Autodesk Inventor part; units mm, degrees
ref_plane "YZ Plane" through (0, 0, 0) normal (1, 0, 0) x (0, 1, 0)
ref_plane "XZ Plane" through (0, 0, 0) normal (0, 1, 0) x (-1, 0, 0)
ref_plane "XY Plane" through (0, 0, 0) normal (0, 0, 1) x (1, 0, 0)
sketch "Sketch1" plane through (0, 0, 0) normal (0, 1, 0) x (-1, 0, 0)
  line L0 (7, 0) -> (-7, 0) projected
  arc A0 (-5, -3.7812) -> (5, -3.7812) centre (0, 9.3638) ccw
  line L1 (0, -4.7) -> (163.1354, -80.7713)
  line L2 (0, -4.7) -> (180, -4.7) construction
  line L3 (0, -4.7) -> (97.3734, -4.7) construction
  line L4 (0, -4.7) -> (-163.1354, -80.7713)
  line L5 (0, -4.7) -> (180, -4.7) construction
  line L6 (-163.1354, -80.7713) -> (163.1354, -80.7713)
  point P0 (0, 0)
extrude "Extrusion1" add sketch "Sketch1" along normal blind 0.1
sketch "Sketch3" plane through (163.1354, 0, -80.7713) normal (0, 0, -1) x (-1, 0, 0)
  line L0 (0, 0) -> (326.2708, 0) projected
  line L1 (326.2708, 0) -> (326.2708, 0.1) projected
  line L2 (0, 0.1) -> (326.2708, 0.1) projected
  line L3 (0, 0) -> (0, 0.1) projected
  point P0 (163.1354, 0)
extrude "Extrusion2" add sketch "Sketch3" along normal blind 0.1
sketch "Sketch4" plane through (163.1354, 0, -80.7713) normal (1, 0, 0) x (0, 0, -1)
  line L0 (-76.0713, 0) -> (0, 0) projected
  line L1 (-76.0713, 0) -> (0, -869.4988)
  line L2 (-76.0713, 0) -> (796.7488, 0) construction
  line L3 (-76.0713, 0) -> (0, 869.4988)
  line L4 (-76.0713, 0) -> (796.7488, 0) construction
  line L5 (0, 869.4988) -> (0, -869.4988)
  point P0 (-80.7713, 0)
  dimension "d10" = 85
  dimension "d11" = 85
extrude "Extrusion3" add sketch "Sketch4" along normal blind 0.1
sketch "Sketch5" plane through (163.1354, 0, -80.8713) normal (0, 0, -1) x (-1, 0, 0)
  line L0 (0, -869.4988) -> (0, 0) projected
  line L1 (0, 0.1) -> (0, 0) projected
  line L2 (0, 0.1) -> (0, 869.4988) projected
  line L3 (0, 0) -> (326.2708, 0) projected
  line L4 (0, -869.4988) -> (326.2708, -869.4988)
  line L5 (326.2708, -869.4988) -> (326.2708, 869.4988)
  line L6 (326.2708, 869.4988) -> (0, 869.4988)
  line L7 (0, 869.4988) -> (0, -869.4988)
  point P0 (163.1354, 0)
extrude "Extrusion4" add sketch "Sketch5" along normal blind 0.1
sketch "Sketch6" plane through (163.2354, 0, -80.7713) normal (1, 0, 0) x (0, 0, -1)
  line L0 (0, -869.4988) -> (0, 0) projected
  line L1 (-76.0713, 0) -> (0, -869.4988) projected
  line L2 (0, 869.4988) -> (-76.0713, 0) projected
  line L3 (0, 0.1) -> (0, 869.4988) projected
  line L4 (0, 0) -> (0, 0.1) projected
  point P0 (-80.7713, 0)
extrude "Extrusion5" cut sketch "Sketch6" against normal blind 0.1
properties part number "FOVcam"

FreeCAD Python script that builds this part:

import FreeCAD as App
import Part
import Sketcher

V = App.Vector
Q = App.Units.Quantity


def add_polygon(sketch, points):
    """Adds a closed chain of lines whose ends are joined by coincident constraints."""
    first, n = sketch.GeometryCount, len(points)
    for a, b in zip(points, points[1:] + points[:1]):
        sketch.addGeometry(Part.LineSegment(App.Vector(*a, 0), App.Vector(*b, 0)), False)
    for i in range(n):
        sketch.addConstraint(Sketcher.Constraint("Coincident", first + i, 2, first + (i + 1) % n, 1))

doc = App.newDocument("Part")
params = doc.addObject("Spreadsheet::Sheet", "Params")
for row, (alias, value) in enumerate([
    ("sketch1_length", "180 mm"),
    ("pad1_length", "0.1 mm"),
    ("sketch2_height", "0.1 mm"),
    ("pad2_length", "0.1 mm"),
    ("pad3_length", "0.1 mm"),
    ("pad4_length", "0.1 mm"),
    ("pocket1_length", "0.1 mm"),
], start=1):
    params.set(f"A{row}", alias)
    params.set(f"B{row}", "=" + value)
    params.setAlias(f"B{row}", alias)

body = doc.addObject("PartDesign::Body", "Body")
body.AllowCompound = True

# Sketch on XZ plane
sketch1 = body.newObject("Sketcher::SketchObject", "Sketch")
sketch1.AttachmentSupport = (doc.getObject("XZ_Plane"), [""])
sketch1.MapMode = "FlatFace"
add_polygon(sketch1, [(-163.1354, -80.7713), (0, -4.7), (163.1354, -80.7713)])  # lines 0-2
sketch1.addConstraint([
    Sketcher.Constraint("Horizontal", 2),
    Sketcher.Constraint("PointOnObject", 0, 2, -2),
    Sketcher.Constraint("Equal", 0, 1),
    Sketcher.Constraint("Angle", 0, Q("25 deg")),
    Sketcher.Constraint("Distance", 0, Q("180 mm")),
    Sketcher.Constraint("DistanceY", 0, 2, -1, 1, Q("4.7 mm")),
])
sketch1.setExpression("Constraints[7]", "Params.sketch1_length")
pad1 = body.newObject("PartDesign::Pad", "Pad")
pad1.Profile = sketch1
pad1.setExpression("Length", "Params.pad1_length")
pad1.Reversed = True

# Sketch on XY plane
sketch2 = body.newObject("Sketcher::SketchObject", "Sketch001")
sketch2.AttachmentSupport = (doc.getObject("XY_Plane"), [""])
sketch2.MapMode = "FlatFace"
sketch2.AttachmentOffset = App.Placement(V(0, 0, -80.7713), App.Rotation())
add_polygon(sketch2, [(163.1354, 0.1), (163.1354, 0), (-163.1354, 0), (-163.1354, 0.1)])  # lines 0-3
sketch2.addConstraint([
    Sketcher.Constraint("Vertical", 0),
    Sketcher.Constraint("Horizontal", 1),
    Sketcher.Constraint("Vertical", 2),
    Sketcher.Constraint("Horizontal", 3),
    Sketcher.Constraint("Symmetric", 0, 2, 1, 2, -1, 1),
    Sketcher.Constraint("DistanceY", 0, 2, 0, 1, Q("0.1 mm")),
    Sketcher.Constraint("DistanceX", 1, 2, 1, 1, Q("326.2708 mm")),
])
sketch2.setExpression("Constraints[9]", "Params.sketch2_height")
pad2 = body.newObject("PartDesign::Pad", "Pad001")
pad2.Profile = sketch2
pad2.setExpression("Length", "Params.pad2_length")
pad2.Reversed = True

# Sketch on YZ plane
sketch3 = body.newObject("Sketcher::SketchObject", "Sketch002")
sketch3.AttachmentSupport = (doc.getObject("YZ_Plane"), [""])
sketch3.MapMode = "FlatFace"
sketch3.AttachmentOffset = App.Placement(V(0, 0, 163.1354), App.Rotation())
add_polygon(sketch3, [(869.4988, -80.7713), (0, -4.7), (-869.4988, -80.7713)])  # lines 0-2
sketch3.addConstraint([
    Sketcher.Constraint("Horizontal", 2),
    Sketcher.Constraint("PointOnObject", 0, 2, -2),
    Sketcher.Constraint("Equal", 0, 1),
    Sketcher.Constraint("Angle", 0, Q("175 deg")),
    Sketcher.Constraint("DistanceY", 0, 2, -1, 1, Q("4.7 mm")),
    Sketcher.Constraint("DistanceX", 2, 1, 2, 2, Q("1738.9976 mm")),
])
pad3 = body.newObject("PartDesign::Pad", "Pad002")
pad3.Profile = sketch3
pad3.setExpression("Length", "Params.pad3_length")

# Sketch on XY plane
sketch4 = body.newObject("Sketcher::SketchObject", "Sketch003")
sketch4.AttachmentSupport = (doc.getObject("XY_Plane"), [""])
sketch4.MapMode = "FlatFace"
sketch4.AttachmentOffset = App.Placement(V(0, 0, -80.8713), App.Rotation())
add_polygon(sketch4, [(163.1354, -869.4988), (-163.1354, -869.4988), (-163.1354, 869.4988), (163.1354, 869.4988)])  # lines 0-3
sketch4.addConstraint([
    Sketcher.Constraint("Horizontal", 0),
    Sketcher.Constraint("Vertical", 1),
    Sketcher.Constraint("Horizontal", 2),
    Sketcher.Constraint("Vertical", 3),
    Sketcher.Constraint("Symmetric", 0, 2, 2, 2, -1, 1),
    Sketcher.Constraint("DistanceX", 0, 2, 0, 1, Q("326.2708 mm")),
    Sketcher.Constraint("DistanceY", 1, 1, 1, 2, Q("1738.9976 mm")),
])
pad4 = body.newObject("PartDesign::Pad", "Pad003")
pad4.Profile = sketch4
pad4.setExpression("Length", "Params.pad4_length")
pad4.Reversed = True

# Sketch on YZ plane
sketch5 = body.newObject("Sketcher::SketchObject", "Sketch004")
sketch5.AttachmentSupport = (doc.getObject("YZ_Plane"), [""])
sketch5.MapMode = "FlatFace"
sketch5.AttachmentOffset = App.Placement(V(0, 0, 163.2354), App.Rotation())
add_polygon(sketch5, [(0, -4.7), (-869.4988, -80.7713), (869.4988, -80.7713)])  # lines 0-2
sketch5.addConstraint([
    Sketcher.Constraint("Horizontal", 1),
    Sketcher.Constraint("PointOnObject", 2, 2, -2),
    Sketcher.Constraint("Equal", 0, 2),
    Sketcher.Constraint("Angle", 0, Q("-175 deg")),
    Sketcher.Constraint("DistanceY", 2, 2, -1, 1, Q("4.7 mm")),
    Sketcher.Constraint("DistanceX", 1, 1, 1, 2, Q("1738.9976 mm")),
])
pocket1 = body.newObject("PartDesign::Pocket", "Pocket")
pocket1.Profile = sketch5
pocket1.setExpression("Length", "Params.pocket1_length")

doc.recompute()
